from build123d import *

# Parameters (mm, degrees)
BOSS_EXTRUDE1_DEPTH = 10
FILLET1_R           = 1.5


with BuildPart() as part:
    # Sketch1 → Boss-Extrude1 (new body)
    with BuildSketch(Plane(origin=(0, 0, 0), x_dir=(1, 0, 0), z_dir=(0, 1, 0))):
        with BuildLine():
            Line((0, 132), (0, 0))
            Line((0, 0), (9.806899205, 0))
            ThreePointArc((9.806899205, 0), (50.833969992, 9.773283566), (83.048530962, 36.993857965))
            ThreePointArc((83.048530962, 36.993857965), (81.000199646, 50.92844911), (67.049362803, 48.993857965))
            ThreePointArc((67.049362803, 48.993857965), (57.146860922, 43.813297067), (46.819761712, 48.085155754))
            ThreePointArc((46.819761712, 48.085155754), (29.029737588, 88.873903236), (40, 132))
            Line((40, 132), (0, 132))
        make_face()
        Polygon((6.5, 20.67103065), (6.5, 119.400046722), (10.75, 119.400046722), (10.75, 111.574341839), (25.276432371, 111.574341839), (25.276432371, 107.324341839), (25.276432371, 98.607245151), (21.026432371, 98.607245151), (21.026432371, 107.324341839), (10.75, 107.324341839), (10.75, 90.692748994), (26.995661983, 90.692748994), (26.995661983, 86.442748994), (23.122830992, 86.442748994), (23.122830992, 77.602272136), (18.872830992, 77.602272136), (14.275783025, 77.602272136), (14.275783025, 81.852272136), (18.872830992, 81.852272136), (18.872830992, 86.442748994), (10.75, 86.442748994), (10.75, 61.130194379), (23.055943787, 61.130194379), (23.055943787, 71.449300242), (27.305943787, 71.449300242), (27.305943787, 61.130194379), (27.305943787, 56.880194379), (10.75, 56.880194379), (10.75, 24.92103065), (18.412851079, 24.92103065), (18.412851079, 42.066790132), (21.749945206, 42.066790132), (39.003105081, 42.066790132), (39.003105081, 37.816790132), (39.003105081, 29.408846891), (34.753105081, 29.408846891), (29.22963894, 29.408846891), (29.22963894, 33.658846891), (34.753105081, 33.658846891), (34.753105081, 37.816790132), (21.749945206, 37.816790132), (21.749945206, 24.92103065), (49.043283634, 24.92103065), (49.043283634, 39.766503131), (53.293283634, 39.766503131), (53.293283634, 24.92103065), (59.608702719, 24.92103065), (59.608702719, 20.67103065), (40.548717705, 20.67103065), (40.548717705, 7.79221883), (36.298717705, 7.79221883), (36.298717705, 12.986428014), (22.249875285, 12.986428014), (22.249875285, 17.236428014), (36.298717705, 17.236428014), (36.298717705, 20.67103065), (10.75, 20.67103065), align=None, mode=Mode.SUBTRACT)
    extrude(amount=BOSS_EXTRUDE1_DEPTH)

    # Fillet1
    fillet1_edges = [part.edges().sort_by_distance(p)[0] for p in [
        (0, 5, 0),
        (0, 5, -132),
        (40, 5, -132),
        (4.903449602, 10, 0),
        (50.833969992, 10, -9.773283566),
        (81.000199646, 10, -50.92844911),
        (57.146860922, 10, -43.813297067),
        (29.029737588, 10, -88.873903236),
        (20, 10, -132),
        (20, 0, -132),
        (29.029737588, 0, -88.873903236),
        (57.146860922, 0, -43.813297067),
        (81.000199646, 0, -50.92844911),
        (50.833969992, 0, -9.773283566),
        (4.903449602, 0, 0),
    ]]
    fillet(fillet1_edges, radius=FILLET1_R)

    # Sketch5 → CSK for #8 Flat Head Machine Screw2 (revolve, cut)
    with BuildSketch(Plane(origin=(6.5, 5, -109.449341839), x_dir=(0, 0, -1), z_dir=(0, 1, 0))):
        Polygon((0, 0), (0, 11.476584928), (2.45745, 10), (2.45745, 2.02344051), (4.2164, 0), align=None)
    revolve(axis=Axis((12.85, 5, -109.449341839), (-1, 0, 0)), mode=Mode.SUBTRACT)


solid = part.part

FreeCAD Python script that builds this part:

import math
import FreeCAD as App
import Part
import Sketcher
Q = App.Units.Quantity


def edges_at(feature, points):
    """Names of the edges that pass closest to the given points."""
    edges = feature.Shape.Edges
    near = lambda p: min(range(len(edges)), key=lambda i: edges[i].distToShape(Part.Vertex(*p))[0])
    return sorted({f"Edge{near(p) + 1}" for p in points})

doc = App.newDocument("Part")
body = doc.addObject("PartDesign::Body", "Body")

# Sketch on XZ plane
sketch1 = body.newObject("Sketcher::SketchObject", "Sketch")
sketch1.AttachmentSupport = (doc.getObject("XZ_Plane"), [""])
sketch1.MapMode = "FlatFace"
sketch1.addGeometry([
    Part.LineSegment(App.Vector(0, -132, 0), App.Vector(0, 0, 0)),  # 0
    Part.LineSegment(App.Vector(0, 0, 0), App.Vector(9.8, 0, 0)),  # 1
    Part.ArcOfCircle(Part.Circle(App.Vector(9.8, -91, 0), App.Vector(0, 0, 1), 91), math.radians(36), math.radians(90)),  # 2
    Part.ArcOfCircle(Part.Circle(App.Vector(75, -42.9, 0), App.Vector(0, 0, 1), 10), math.radians(-143), math.radians(36)),  # 3
    Part.ArcOfCircle(Part.Circle(App.Vector(56.6, -57, 0), App.Vector(0, 0, 1), 13.2), math.radians(37), math.radians(138)),  # 4
    Part.ArcOfCircle(Part.Circle(App.Vector(97.4, -94.4, 0), App.Vector(0, 0, 1), 68.6), math.radians(138), math.radians(213)),  # 5
    Part.LineSegment(App.Vector(40, -132, 0), App.Vector(0, -132, 0)),  # 6
    Part.LineSegment(App.Vector(36.3, -20.7, 0), App.Vector(6.5, -20.7, 0)),  # 7
    Part.LineSegment(App.Vector(6.5, -20.7, 0), App.Vector(6.5, -119.4, 0)),  # 8
    Part.LineSegment(App.Vector(6.5, -119.4, 0), App.Vector(10.8, -119.4, 0)),  # 9
    Part.LineSegment(App.Vector(10.8, -119.4, 0), App.Vector(10.8, -111.6, 0)),  # 10
    Part.LineSegment(App.Vector(10.8, -111.6, 0), App.Vector(25.3, -111.6, 0)),  # 11
    Part.LineSegment(App.Vector(25.3, -111.6, 0), App.Vector(25.3, -98.6, 0)),  # 12
    Part.LineSegment(App.Vector(25.3, -98.6, 0), App.Vector(21, -98.6, 0)),  # 13
    Part.LineSegment(App.Vector(21, -98.6, 0), App.Vector(21, -107.3, 0)),  # 14
    Part.LineSegment(App.Vector(21, -107.3, 0), App.Vector(10.8, -107.3, 0)),  # 15
    Part.LineSegment(App.Vector(10.8, -107.3, 0), App.Vector(10.8, -90.7, 0)),  # 16
    Part.LineSegment(App.Vector(10.8, -90.7, 0), App.Vector(27, -90.7, 0)),  # 17
    Part.LineSegment(App.Vector(27, -90.7, 0), App.Vector(27, -86.4, 0)),  # 18
    Part.LineSegment(App.Vector(27, -86.4, 0), App.Vector(23.1, -86.4, 0)),  # 19
    Part.LineSegment(App.Vector(23.1, -86.4, 0), App.Vector(23.1, -77.6, 0)),  # 20
    Part.LineSegment(App.Vector(23.1, -77.6, 0), App.Vector(14.3, -77.6, 0)),  # 21
    Part.LineSegment(App.Vector(14.3, -77.6, 0), App.Vector(14.3, -81.9, 0)),  # 22
    Part.LineSegment(App.Vector(14.3, -81.9, 0), App.Vector(18.9, -81.9, 0)),  # 23
    Part.LineSegment(App.Vector(18.9, -81.9, 0), App.Vector(18.9, -86.4, 0)),  # 24
    Part.LineSegment(App.Vector(18.9, -86.4, 0), App.Vector(10.8, -86.4, 0)),  # 25
    Part.LineSegment(App.Vector(10.8, -86.4, 0), App.Vector(10.8, -61.1, 0)),  # 26
    Part.LineSegment(App.Vector(10.8, -61.1, 0), App.Vector(23.1, -61.1, 0)),  # 27
    Part.LineSegment(App.Vector(23.1, -61.1, 0), App.Vector(23.1, -71.4, 0)),  # 28
    Part.LineSegment(App.Vector(23.1, -71.4, 0), App.Vector(27.3, -71.4, 0)),  # 29
    Part.LineSegment(App.Vector(27.3, -71.4, 0), App.Vector(27.3, -56.9, 0)),  # 30
    Part.LineSegment(App.Vector(27.3, -56.9, 0), App.Vector(10.8, -56.9, 0)),  # 31
    Part.LineSegment(App.Vector(10.8, -56.9, 0), App.Vector(10.8, -24.9, 0)),  # 32
    Part.LineSegment(App.Vector(10.8, -24.9, 0), App.Vector(18.4, -24.9, 0)),  # 33
    Part.LineSegment(App.Vector(18.4, -24.9, 0), App.Vector(18.4, -42.1, 0)),  # 34
    Part.LineSegment(App.Vector(18.4, -42.1, 0), App.Vector(39, -42.1, 0)),  # 35
    Part.LineSegment(App.Vector(39, -42.1, 0), App.Vector(39, -29.4, 0)),  # 36
    Part.LineSegment(App.Vector(39, -29.4, 0), App.Vector(29.2, -29.4, 0)),  # 37
    Part.LineSegment(App.Vector(29.2, -29.4, 0), App.Vector(29.2, -33.7, 0)),  # 38
    Part.LineSegment(App.Vector(29.2, -33.7, 0), App.Vector(34.8, -33.7, 0)),  # 39
    Part.LineSegment(App.Vector(34.8, -33.7, 0), App.Vector(34.8, -37.8, 0)),  # 40
    Part.LineSegment(App.Vector(34.8, -37.8, 0), App.Vector(21.7, -37.8, 0)),  # 41
    Part.LineSegment(App.Vector(21.7, -37.8, 0), App.Vector(21.7, -24.9, 0)),  # 42
    Part.LineSegment(App.Vector(21.7, -24.9, 0), App.Vector(49, -24.9, 0)),  # 43
    Part.LineSegment(App.Vector(49, -24.9, 0), App.Vector(49, -39.8, 0)),  # 44
    Part.LineSegment(App.Vector(49, -39.8, 0), App.Vector(53.3, -39.8, 0)),  # 45
    Part.LineSegment(App.Vector(53.3, -39.8, 0), App.Vector(53.3, -24.9, 0)),  # 46
    Part.LineSegment(App.Vector(53.3, -24.9, 0), App.Vector(59.6, -24.9, 0)),  # 47
    Part.LineSegment(App.Vector(59.6, -24.9, 0), App.Vector(59.6, -20.7, 0)),  # 48
    Part.LineSegment(App.Vector(59.6, -20.7, 0), App.Vector(40.5, -20.7, 0)),  # 49
    Part.LineSegment(App.Vector(40.5, -20.7, 0), App.Vector(40.5, -7.8, 0)),  # 50
    Part.LineSegment(App.Vector(40.5, -7.8, 0), App.Vector(36.3, -7.8, 0)),  # 51
    Part.LineSegment(App.Vector(36.3, -7.8, 0), App.Vector(36.3, -13, 0)),  # 52
    Part.LineSegment(App.Vector(36.3, -13, 0), App.Vector(22.2, -13, 0)),  # 53
    Part.LineSegment(App.Vector(22.2, -13, 0), App.Vector(22.2, -17.2, 0)),  # 54
    Part.LineSegment(App.Vector(22.2, -17.2, 0), App.Vector(36.3, -17.2, 0)),  # 55
    Part.LineSegment(App.Vector(36.3, -17.2, 0), App.Vector(36.3, -20.7, 0)),  # 56
], False)
sketch1.addConstraint([
    Sketcher.Constraint("Coincident", 0, 2, 1, 1),
    Sketcher.Constraint("Tangent", 1, 2, 2, 2),
    Sketcher.Constraint("Tangent", 2, 1, 3, 2),
    Sketcher.Constraint("Tangent", 3, 1, 4, 1),
    Sketcher.Constraint("Tangent", 4, 2, 5, 1),
    Sketcher.Constraint("Coincident", 5, 2, 6, 1),
    Sketcher.Constraint("Coincident", 6, 2, 0, 1),
    Sketcher.Constraint("Coincident", 7, 2, 8, 1),
    Sketcher.Constraint("Coincident", 8, 2, 9, 1),
    Sketcher.Constraint("Coincident", 9, 2, 10, 1),
    Sketcher.Constraint("Coincident", 10, 2, 11, 1),
    Sketcher.Constraint("Coincident", 11, 2, 12, 1),
    Sketcher.Constraint("Coincident", 12, 2, 13, 1),
    Sketcher.Constraint("Coincident", 13, 2, 14, 1),
    Sketcher.Constraint("Coincident", 14, 2, 15, 1),
    Sketcher.Constraint("Coincident", 15, 2, 16, 1),
    Sketcher.Constraint("Coincident", 16, 2, 17, 1),
    Sketcher.Constraint("Coincident", 17, 2, 18, 1),
    Sketcher.Constraint("Coincident", 18, 2, 19, 1),
    Sketcher.Constraint("Coincident", 19, 2, 20, 1),
    Sketcher.Constraint("Coincident", 20, 2, 21, 1),
    Sketcher.Constraint("Coincident", 21, 2, 22, 1),
    Sketcher.Constraint("Coincident", 22, 2, 23, 1),
    Sketcher.Constraint("Coincident", 23, 2, 24, 1),
    Sketcher.Constraint("Coincident", 24, 2, 25, 1),
    Sketcher.Constraint("Coincident", 25, 2, 26, 1),
    Sketcher.Constraint("Coincident", 26, 2, 27, 1),
    Sketcher.Constraint("Coincident", 27, 2, 28, 1),
    Sketcher.Constraint("Coincident", 28, 2, 29, 1),
    Sketcher.Constraint("Coincident", 29, 2, 30, 1),
    Sketcher.Constraint("Coincident", 30, 2, 31, 1),
    Sketcher.Constraint("Coincident", 31, 2, 32, 1),
    Sketcher.Constraint("Coincident", 32, 2, 33, 1),
    Sketcher.Constraint("Coincident", 33, 2, 34, 1),
    Sketcher.Constraint("Coincident", 34, 2, 35, 1),
    Sketcher.Constraint("Coincident", 35, 2, 36, 1),
    Sketcher.Constraint("Coincident", 36, 2, 37, 1),
    Sketcher.Constraint("Coincident", 37, 2, 38, 1),
    Sketcher.Constraint("Coincident", 38, 2, 39, 1),
    Sketcher.Constraint("Coincident", 39, 2, 40, 1),
    Sketcher.Constraint("Coincident", 40, 2, 41, 1),
    Sketcher.Constraint("Coincident", 41, 2, 42, 1),
    Sketcher.Constraint("Coincident", 42, 2, 43, 1),
    Sketcher.Constraint("Coincident", 43, 2, 44, 1),
    Sketcher.Constraint("Coincident", 44, 2, 45, 1),
    Sketcher.Constraint("Coincident", 45, 2, 46, 1),
    Sketcher.Constraint("Coincident", 46, 2, 47, 1),
    Sketcher.Constraint("Coincident", 47, 2, 48, 1),
    Sketcher.Constraint("Coincident", 48, 2, 49, 1),
    Sketcher.Constraint("Coincident", 49, 2, 50, 1),
    Sketcher.Constraint("Coincident", 50, 2, 51, 1),
    Sketcher.Constraint("Coincident", 51, 2, 52, 1),
    Sketcher.Constraint("Coincident", 52, 2, 53, 1),
    Sketcher.Constraint("Coincident", 53, 2, 54, 1),
    Sketcher.Constraint("Coincident", 54, 2, 55, 1),
    Sketcher.Constraint("Coincident", 55, 2, 56, 1),
    Sketcher.Constraint("Coincident", 56, 2, 7, 1),
    Sketcher.Constraint("Vertical", 0),
    Sketcher.Constraint("Horizontal", 1),
    Sketcher.Constraint("Horizontal", 6),
    Sketcher.Constraint("Horizontal", 7),
    Sketcher.Constraint("Vertical", 8),
    Sketcher.Constraint("Horizontal", 9),
    Sketcher.Constraint("Vertical", 10),
    Sketcher.Constraint("Horizontal", 11),
    Sketcher.Constraint("Vertical", 12),
    Sketcher.Constraint("Horizontal", 13),
    Sketcher.Constraint("Vertical", 14),
    Sketcher.Constraint("Horizontal", 15),
    Sketcher.Constraint("Vertical", 16),
    Sketcher.Constraint("Horizontal", 17),
    Sketcher.Constraint("Vertical", 18),
    Sketcher.Constraint("Horizontal", 19),
    Sketcher.Constraint("Vertical", 20),
    Sketcher.Constraint("Horizontal", 21),
    Sketcher.Constraint("Vertical", 22),
    Sketcher.Constraint("Horizontal", 23),
    Sketcher.Constraint("Vertical", 24),
    Sketcher.Constraint("Horizontal", 25),
    Sketcher.Constraint("Vertical", 26),
    Sketcher.Constraint("Horizontal", 27),
    Sketcher.Constraint("Vertical", 28),
    Sketcher.Constraint("Horizontal", 29),
    Sketcher.Constraint("Vertical", 30),
    Sketcher.Constraint("Horizontal", 31),
    Sketcher.Constraint("Vertical", 32),
    Sketcher.Constraint("Horizontal", 33),
    Sketcher.Constraint("Vertical", 34),
    Sketcher.Constraint("Horizontal", 35),
    Sketcher.Constraint("Vertical", 36),
    Sketcher.Constraint("Horizontal", 37),
    Sketcher.Constraint("Vertical", 38),
    Sketcher.Constraint("Horizontal", 39),
    Sketcher.Constraint("Vertical", 40),
    Sketcher.Constraint("Horizontal", 41),
    Sketcher.Constraint("Vertical", 42),
    Sketcher.Constraint("Horizontal", 43),
    Sketcher.Constraint("Vertical", 44),
    Sketcher.Constraint("Horizontal", 45),
    Sketcher.Constraint("Vertical", 46),
    Sketcher.Constraint("Horizontal", 47),
    Sketcher.Constraint("Vertical", 48),
    Sketcher.Constraint("Horizontal", 49),
    Sketcher.Constraint("Vertical", 50),
    Sketcher.Constraint("Horizontal", 51),
    Sketcher.Constraint("Vertical", 52),
    Sketcher.Constraint("Horizontal", 53),
    Sketcher.Constraint("Vertical", 54),
    Sketcher.Constraint("Horizontal", 55),
    Sketcher.Constraint("Vertical", 56),
    Sketcher.Constraint("Coincident", 0, 2, -1, 1),
    Sketcher.Constraint("Horizontal", 19, 2, 24, 2),
    Sketcher.Constraint("Horizontal", 33, 2, 42, 2),
    Sketcher.Constraint("Horizontal", 43, 2, 46, 2),
    Sketcher.Constraint("Horizontal", 7, 2, 48, 2),
    Sketcher.Constraint("Vertical", 10, 2, 15, 2),
    Sketcher.Constraint("Vertical", 16, 2, 25, 2),
    Sketcher.Constraint("Vertical", 26, 2, 31, 2),
    Sketcher.Constraint("Vertical", 52, 2, 55, 2),
    Sketcher.Constraint("Equal", 9, 13),
    Sketcher.Constraint("Equal", 13, 29),
    Sketcher.Constraint("Equal", 29, 45),
    Sketcher.Constraint("Equal", 45, 51),
    Sketcher.Constraint("Equal", 51, 18),
    Sketcher.Constraint("Equal", 18, 22),
    Sketcher.Constraint("Equal", 22, 38),
    Sketcher.Constraint("Equal", 38, 48),
    Sketcher.Constraint("Equal", 48, 54),
    Sketcher.Constraint("Radius", 2, Q("91 mm")),
    Sketcher.Constraint("Radius", 3, Q("10 mm")),
    Sketcher.Constraint("Radius", 4, Q("13.2 mm")),
    Sketcher.Constraint("DistanceX", 6, 2, 6, 1, Q("40 mm")),
    Sketcher.Constraint("DistanceY", 0, 1, 0, 2, Q("132 mm")),
    Sketcher.Constraint("DistanceX", -1, 1, 3, 3, Q("75 mm")),
    Sketcher.Constraint("DistanceY", 4, 3, -1, 1, Q("57 mm")),
    Sketcher.Constraint("DistanceX", 9, 1, 9, 2, Q("4.25 mm")),
    Sketcher.Constraint("DistanceX", -1, 1, 7, 2, Q("6.5 mm")),
    Sketcher.Constraint("Radius", 5, Q("68.625869 mm")),
    Sketcher.Constraint("DistanceX", 1, 1, 1, 2, Q("9.806899 mm")),
    Sketcher.Constraint("DistanceX", 17, 1, 17, 2, Q("16.245662 mm")),
    Sketcher.Constraint("DistanceX", 19, 2, 19, 1, Q("3.872831 mm")),
    Sketcher.Constraint("DistanceX", 25, 2, 25, 1, Q("8.122831 mm")),
    Sketcher.Constraint("DistanceX", 33, 1, 33, 2, Q("7.662851 mm")),
    Sketcher.Constraint("DistanceX", 41, 2, 41, 1, Q("13.00316 mm")),
    Sketcher.Constraint("DistanceX", 43, 1, 43, 2, Q("27.293338 mm")),
    Sketcher.Constraint("DistanceX", 47, 1, 47, 2, Q("6.315419 mm")),
    Sketcher.Constraint("DistanceY", 34, 2, 34, 1, Q("17.145759 mm")),
    Sketcher.Constraint("DistanceY", 42, 1, 42, 2, Q("12.895759 mm")),
    Sketcher.Constraint("DistanceY", 50, 1, 50, 2, Q("12.878812 mm")),
    Sketcher.Constraint("DistanceY", 52, 2, 52, 1, Q("5.194209 mm")),
    Sketcher.Constraint("DistanceY", 28, 2, -1, 1, Q("71.4493 mm")),
    Sketcher.Constraint("DistanceX", 7, 2, 7, 1, Q("29.798718 mm")),
    Sketcher.Constraint("DistanceX", 11, 1, 11, 2, Q("14.526432 mm")),
    Sketcher.Constraint("DistanceX", 21, 2, 21, 1, Q("8.847048 mm")),
    Sketcher.Constraint("DistanceX", 27, 1, 27, 2, Q("12.305944 mm")),
    Sketcher.Constraint("DistanceX", 35, 1, 35, 2, Q("20.590254 mm")),
    Sketcher.Constraint("DistanceX", 37, 2, 37, 1, Q("9.773466 mm")),
    Sketcher.Constraint("DistanceX", 39, 1, 39, 2, Q("5.523466 mm")),
    Sketcher.Constraint("DistanceX", 53, 2, 53, 1, Q("14.048842 mm")),
    Sketcher.Constraint("DistanceY", 8, 2, 8, 1, Q("98.729016 mm")),
    Sketcher.Constraint("DistanceY", 10, 1, 10, 2, Q("7.825705 mm")),
    Sketcher.Constraint("DistanceY", 12, 1, 12, 2, Q("12.967097 mm")),
    Sketcher.Constraint("DistanceY", 14, 2, 14, 1, Q("8.717097 mm")),
    Sketcher.Constraint("DistanceY", 16, 1, 16, 2, Q("16.631593 mm")),
    Sketcher.Constraint("DistanceY", 20, 1, 20, 2, Q("8.840477 mm")),
    Sketcher.Constraint("DistanceY", 26, 1, 26, 2, Q("25.312555 mm")),
    Sketcher.Constraint("DistanceY", 28, 2, 28, 1, Q("10.319106 mm")),
    Sketcher.Constraint("DistanceY", 30, 1, 30, 2, Q("14.569106 mm")),
    Sketcher.Constraint("DistanceY", 36, 1, 36, 2, Q("12.657943 mm")),
    Sketcher.Constraint("DistanceY", 44, 2, 44, 1, Q("14.845472 mm")),
])
pad1 = body.newObject("PartDesign::Pad", "Pad")
pad1.Profile = sketch1
pad1.Length = 10
pad1.Reversed = True
doc.recompute()

fillet = body.newObject("PartDesign::Fillet", "Fillet")
fillet.Base = (pad1, edges_at(pad1, [
    (0, 5, 0),
    (0, 5, -132),
    (40, 5, -132),
    (4.903, 10, 0),
    (50.834, 10, -9.773),
    (81, 10, -50.928),
    (57.147, 10, -43.813),
    (29.03, 10, -88.874),
    (20, 10, -132),
    (20, 0, -132),
    (29.03, 0, -88.874),
    (57.147, 0, -43.813),
    (81, 0, -50.928),
    (50.834, 0, -9.773),
    (4.903, 0, 0),
]))
fillet.Radius = 1.5

# Sketch on XZ plane
sketch2 = body.newObject("Sketcher::SketchObject", "Sketch001")
sketch2.AttachmentSupport = (doc.getObject("XZ_Plane"), [""])
sketch2.MapMode = "FlatFace"
sketch2.AttachmentOffset = App.Placement(App.Vector(0, 0, -5), App.Rotation())
sketch2.addGeometry([
    Part.LineSegment(App.Vector(-5, -109.4, 0), App.Vector(6.5, -109.4, 0)),  # 0
    Part.LineSegment(App.Vector(6.5, -109.4, 0), App.Vector(6.5, -113.7, 0)),  # 1
    Part.LineSegment(App.Vector(6.5, -113.7, 0), App.Vector(4.5, -111.9, 0)),  # 2
    Part.LineSegment(App.Vector(4.5, -111.9, 0), App.Vector(-3.5, -111.9, 0)),  # 3
    Part.LineSegment(App.Vector(-3.5, -111.9, 0), App.Vector(-5, -109.4, 0)),  # 4
], False)
sketch2.addGeometry(Part.LineSegment(App.Vector(6.5, -109.4, 0), App.Vector(-5, -109.4, 0)), True)  # axis
sketch2.addConstraint([
    Sketcher.Constraint("Coincident", 0, 2, 1, 1),
    Sketcher.Constraint("Coincident", 1, 2, 2, 1),
    Sketcher.Constraint("Coincident", 2, 2, 3, 1),
    Sketcher.Constraint("Coincident", 3, 2, 4, 1),
    Sketcher.Constraint("Coincident", 4, 2, 0, 1),
    Sketcher.Constraint("Horizontal", 0),
    Sketcher.Constraint("Vertical", 1),
    Sketcher.Constraint("Horizontal", 3),
    Sketcher.Constraint("Horizontal", 5),
    Sketcher.Constraint("Coincident", 5, 1, 0, 2),
    Sketcher.Constraint("Equal", 0, 5),
    Sketcher.Constraint("Angle", 2, Q("139 deg")),
    Sketcher.Constraint("Angle", 4, Q("121 deg")),
    Sketcher.Constraint("DistanceX", 3, 2, 1, 2, Q("10 mm")),
    Sketcher.Constraint("DistanceX", -1, 1, 0, 2, Q("6.5 mm")),
    Sketcher.Constraint("DistanceY", 1, 2, 1, 1, Q("4.2164 mm")),
    Sketcher.Constraint("DistanceX", 3, 2, 3, 1, Q("7.976559 mm")),
    Sketcher.Constraint("DistanceY", 0, 2, -1, 1, Q("109.449342 mm")),
])
groove = body.newObject("PartDesign::Groove", "Groove")
groove.Profile = sketch2
groove.ReferenceAxis = (sketch2, ["Axis0"])
groove.Angle = 360

doc.recompute()
